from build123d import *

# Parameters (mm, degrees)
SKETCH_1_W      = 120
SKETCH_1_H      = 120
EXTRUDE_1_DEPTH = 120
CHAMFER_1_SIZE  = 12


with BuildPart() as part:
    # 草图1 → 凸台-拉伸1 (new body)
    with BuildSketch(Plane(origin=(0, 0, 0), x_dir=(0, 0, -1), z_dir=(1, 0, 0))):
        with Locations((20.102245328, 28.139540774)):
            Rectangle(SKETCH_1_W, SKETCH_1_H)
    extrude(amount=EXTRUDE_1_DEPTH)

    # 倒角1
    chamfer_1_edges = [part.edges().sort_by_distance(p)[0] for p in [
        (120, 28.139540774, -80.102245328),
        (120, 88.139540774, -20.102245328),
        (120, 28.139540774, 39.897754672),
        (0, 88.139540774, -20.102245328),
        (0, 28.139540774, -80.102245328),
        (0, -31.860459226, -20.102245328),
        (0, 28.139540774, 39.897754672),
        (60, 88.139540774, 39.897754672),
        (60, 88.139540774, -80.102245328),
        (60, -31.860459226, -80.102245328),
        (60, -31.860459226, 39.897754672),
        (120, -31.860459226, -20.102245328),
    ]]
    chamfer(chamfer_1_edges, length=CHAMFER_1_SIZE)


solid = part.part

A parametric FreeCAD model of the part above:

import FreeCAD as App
import Part
import Sketcher
Q = App.Units.Quantity


def add_polygon(sketch, points):
    """Adds a closed chain of lines whose ends are joined by coincident constraints."""
    first, n = sketch.GeometryCount, len(points)
    for a, b in zip(points, points[1:] + points[:1]):
        sketch.addGeometry(Part.LineSegment(App.Vector(*a, 0), App.Vector(*b, 0)), False)
    for i in range(n):
        sketch.addConstraint(Sketcher.Constraint("Coincident", first + i, 2, first + (i + 1) % n, 1))

doc = App.newDocument("Part")
params = doc.addObject("Spreadsheet::Sheet", "Params")
for row, (alias, value) in enumerate([
    ("sketch1_width", "120 mm"),
    ("pad1_length", "120 mm"),
    ("chamfer_size", "12 mm"),
], start=1):
    params.set(f"A{row}", alias)
    params.set(f"B{row}", "=" + value)
    params.setAlias(f"B{row}", alias)

body = doc.addObject("PartDesign::Body", "Body")

sketch1 = body.newObject("Sketcher::SketchObject", "Sketch")
sketch1.AttachmentSupport = (doc.getObject("YZ_Plane"), [""])
sketch1.MapMode = "FlatFace"
add_polygon(sketch1, [(88, 40), (-32, 40), (-32, -80), (88, -80)])
sketch1.addConstraint([
    Sketcher.Constraint("Horizontal", 0),
    Sketcher.Constraint("Vertical", 1),
    Sketcher.Constraint("Horizontal", 2),
    Sketcher.Constraint("Vertical", 3),
    Sketcher.Constraint("Equal", 2, 1),
    Sketcher.Constraint("DistanceX", 0, 2, 0, 1, Q("120 mm")),
    Sketcher.Constraint("DistanceX", 0, 2, -1, 1, Q("31.860459 mm")),
    Sketcher.Constraint("DistanceY", -1, 1, 0, 2, Q("39.897755 mm")),
])
sketch1.setExpression("Constraints[9]", "Params.sketch1_width")
pad1 = body.newObject("PartDesign::Pad", "Pad")
pad1.Profile = sketch1
pad1.setExpression("Length", "Params.pad1_length")
doc.recompute()

chamfer = body.newObject("PartDesign::Chamfer", "Chamfer")
chamfer.Base = (pad1, ["Edge1"])
chamfer.UseAllEdges = True
chamfer.setExpression("Size", "Params.chamfer_size")

doc.recompute()
